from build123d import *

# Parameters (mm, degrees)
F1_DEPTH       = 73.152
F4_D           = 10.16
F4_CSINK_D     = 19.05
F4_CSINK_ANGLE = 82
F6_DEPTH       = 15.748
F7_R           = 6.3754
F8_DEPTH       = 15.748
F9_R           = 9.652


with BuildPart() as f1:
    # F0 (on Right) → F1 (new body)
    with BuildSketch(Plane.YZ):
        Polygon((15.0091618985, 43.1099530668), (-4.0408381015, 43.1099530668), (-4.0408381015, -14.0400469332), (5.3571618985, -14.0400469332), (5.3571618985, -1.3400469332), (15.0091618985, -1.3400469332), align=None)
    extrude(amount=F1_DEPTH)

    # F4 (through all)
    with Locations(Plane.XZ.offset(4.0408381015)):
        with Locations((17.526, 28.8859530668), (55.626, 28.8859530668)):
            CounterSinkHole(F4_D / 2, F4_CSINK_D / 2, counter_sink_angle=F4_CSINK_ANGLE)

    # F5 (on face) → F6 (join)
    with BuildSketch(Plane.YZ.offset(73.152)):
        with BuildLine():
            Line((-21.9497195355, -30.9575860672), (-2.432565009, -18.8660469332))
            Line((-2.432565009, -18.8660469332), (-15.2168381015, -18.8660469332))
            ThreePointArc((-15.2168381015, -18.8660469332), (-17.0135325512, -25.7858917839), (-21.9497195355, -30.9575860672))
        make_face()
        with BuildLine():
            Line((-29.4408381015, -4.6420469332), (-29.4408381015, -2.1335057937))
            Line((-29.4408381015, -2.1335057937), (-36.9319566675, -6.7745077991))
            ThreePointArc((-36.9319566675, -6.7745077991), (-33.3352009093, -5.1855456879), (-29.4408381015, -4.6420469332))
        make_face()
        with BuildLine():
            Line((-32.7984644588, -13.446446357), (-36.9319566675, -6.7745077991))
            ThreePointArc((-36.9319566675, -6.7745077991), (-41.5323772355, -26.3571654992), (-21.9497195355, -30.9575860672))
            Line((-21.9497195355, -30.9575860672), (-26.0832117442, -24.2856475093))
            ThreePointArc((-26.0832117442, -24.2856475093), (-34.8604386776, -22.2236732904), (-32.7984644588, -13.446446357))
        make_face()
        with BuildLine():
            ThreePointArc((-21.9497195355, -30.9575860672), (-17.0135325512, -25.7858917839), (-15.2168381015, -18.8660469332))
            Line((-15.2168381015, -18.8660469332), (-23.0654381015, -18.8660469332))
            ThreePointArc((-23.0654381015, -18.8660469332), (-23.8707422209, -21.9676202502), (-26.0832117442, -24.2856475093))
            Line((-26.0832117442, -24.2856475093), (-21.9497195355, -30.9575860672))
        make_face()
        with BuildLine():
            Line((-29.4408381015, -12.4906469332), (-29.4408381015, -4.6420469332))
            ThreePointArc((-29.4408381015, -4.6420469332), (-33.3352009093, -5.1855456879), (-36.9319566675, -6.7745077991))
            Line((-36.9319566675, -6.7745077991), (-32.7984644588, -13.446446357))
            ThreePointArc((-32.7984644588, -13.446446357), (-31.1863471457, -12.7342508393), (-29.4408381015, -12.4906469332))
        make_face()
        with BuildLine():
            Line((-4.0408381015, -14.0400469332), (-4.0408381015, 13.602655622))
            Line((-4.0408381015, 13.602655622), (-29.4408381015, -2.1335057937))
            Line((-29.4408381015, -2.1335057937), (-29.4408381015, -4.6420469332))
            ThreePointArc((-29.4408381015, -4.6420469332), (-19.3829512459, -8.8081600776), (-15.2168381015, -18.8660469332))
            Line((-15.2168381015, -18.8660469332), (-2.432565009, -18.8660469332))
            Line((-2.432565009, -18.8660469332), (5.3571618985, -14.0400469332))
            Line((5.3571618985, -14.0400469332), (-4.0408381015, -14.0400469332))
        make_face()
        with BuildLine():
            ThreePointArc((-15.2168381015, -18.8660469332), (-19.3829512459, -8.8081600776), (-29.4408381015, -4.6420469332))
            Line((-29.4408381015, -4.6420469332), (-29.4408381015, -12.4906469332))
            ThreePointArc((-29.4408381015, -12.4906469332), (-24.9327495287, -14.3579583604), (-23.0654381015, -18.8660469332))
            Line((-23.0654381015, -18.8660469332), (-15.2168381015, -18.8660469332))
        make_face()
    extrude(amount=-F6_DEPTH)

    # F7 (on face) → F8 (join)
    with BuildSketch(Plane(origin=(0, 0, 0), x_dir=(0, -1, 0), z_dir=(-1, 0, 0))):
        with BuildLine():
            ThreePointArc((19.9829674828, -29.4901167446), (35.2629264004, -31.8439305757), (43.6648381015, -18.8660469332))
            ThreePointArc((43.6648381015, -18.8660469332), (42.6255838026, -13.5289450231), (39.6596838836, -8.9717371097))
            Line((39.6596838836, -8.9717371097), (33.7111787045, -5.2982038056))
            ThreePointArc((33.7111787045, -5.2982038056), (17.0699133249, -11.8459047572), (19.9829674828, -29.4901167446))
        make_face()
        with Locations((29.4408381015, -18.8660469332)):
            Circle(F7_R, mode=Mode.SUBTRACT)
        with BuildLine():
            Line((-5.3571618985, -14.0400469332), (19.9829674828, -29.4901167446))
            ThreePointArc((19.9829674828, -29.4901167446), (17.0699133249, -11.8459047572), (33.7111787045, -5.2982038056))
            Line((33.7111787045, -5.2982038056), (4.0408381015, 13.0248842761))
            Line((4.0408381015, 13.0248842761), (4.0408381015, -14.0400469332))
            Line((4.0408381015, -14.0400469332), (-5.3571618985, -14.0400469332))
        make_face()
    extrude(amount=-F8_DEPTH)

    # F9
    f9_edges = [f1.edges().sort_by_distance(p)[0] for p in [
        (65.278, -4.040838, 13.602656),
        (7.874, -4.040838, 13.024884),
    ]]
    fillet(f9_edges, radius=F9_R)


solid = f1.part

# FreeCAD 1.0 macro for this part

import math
import FreeCAD as App
import Part
import Sketcher
from FreeCAD import Vector
Q = App.Units.Quantity


def edges_at(feature, points):
    """Names of the edges that pass closest to the given points."""
    edges = feature.Shape.Edges
    near = lambda p: min(range(len(edges)), key=lambda i: edges[i].distToShape(Part.Vertex(*p))[0])
    return sorted({f"Edge{near(p) + 1}" for p in points})

doc = App.newDocument("Part")
body = doc.addObject("PartDesign::Body", "Body")

sketch1 = doc.addObject("Sketcher::SketchObject", "Sketch")
body.addObject(sketch1)
sketch1.AttachmentSupport = (doc.YZ_Plane, [""])
sketch1.MapMode = "FlatFace"
sketch1.addGeometry([
    Part.LineSegment(Vector(15.009162, 43.109953, 0), Vector(-4.040838, 43.109953, 0)),
    Part.LineSegment(Vector(-4.040838, 43.109953, 0), Vector(-4.040838, -14.040047, 0)),
    Part.LineSegment(Vector(-4.040838, -14.040047, 0), Vector(5.357162, -14.040047, 0)),
    Part.LineSegment(Vector(5.357162, -14.040047, 0), Vector(5.357162, -1.340047, 0)),
    Part.LineSegment(Vector(5.357162, -1.340047, 0), Vector(15.009162, -1.340047, 0)),
    Part.LineSegment(Vector(15.009162, -1.340047, 0), Vector(15.009162, 43.109953, 0)),
], False)
sketch1.addConstraint([
    Sketcher.Constraint("Coincident", 0, 2, 1, 1),
    Sketcher.Constraint("Coincident", 1, 2, 2, 1),
    Sketcher.Constraint("Coincident", 2, 2, 3, 1),
    Sketcher.Constraint("Coincident", 3, 2, 4, 1),
    Sketcher.Constraint("Coincident", 4, 2, 5, 1),
    Sketcher.Constraint("Coincident", 5, 2, 0, 1),
    Sketcher.Constraint("Horizontal", 0),
    Sketcher.Constraint("Vertical", 1),
    Sketcher.Constraint("Horizontal", 2),
    Sketcher.Constraint("Vertical", 3),
    Sketcher.Constraint("Horizontal", 4),
    Sketcher.Constraint("Vertical", 5),
    Sketcher.Constraint("DistanceY", 3, 1, 3, 2, Q("0.5 in")),
    Sketcher.Constraint("DistanceX", 0, 2, 0, 1, Q("0.75 in")),
    Sketcher.Constraint("DistanceX", 2, 1, 2, 2, Q("0.37 in")),
    Sketcher.Constraint("DistanceY", 1, 2, 1, 1, Q("2.25 in")),
    Sketcher.Constraint("DistanceX", 0, 2, -1, 1, Q("4.040838 mm")),
    Sketcher.Constraint("DistanceY", -1, 1, 0, 2, Q("43.109953 mm")),
])
pad1 = doc.addObject("PartDesign::Pad", "Pad")
body.addObject(pad1)
pad1.Profile = sketch1
pad1.Length = Q("2.88 in")

sketch2 = doc.addObject("Sketcher::SketchObject", "Sketch001")
body.addObject(sketch2)
sketch2.AttachmentSupport = (doc.XZ_Plane, [""])
sketch2.MapMode = "FlatFace"
sketch2.AttachmentOffset = App.Placement(Vector(0, 0, 4.040838), App.Rotation())
sketch2.addGeometry([
    Part.Circle(Vector(17.526, 28.885953, 0), Vector(0, 0, 1), 5.08),
    Part.Circle(Vector(55.626, 28.885953, 0), Vector(0, 0, 1), 5.08),
], False)
sketch2.addConstraint([
    Sketcher.Constraint("Equal", 0, 1),
    Sketcher.Constraint("Horizontal", 0, 3, 1, 3),
    Sketcher.Constraint("Diameter", 0, Q("0.4 in")),
    Sketcher.Constraint("DistanceX", 0, 3, 1, 3, Q("1.5 in")),
    Sketcher.Constraint("DistanceX", -1, 1, 0, 3, Q("0.69 in")),
    Sketcher.Constraint("DistanceY", -1, 1, 0, 3, Q("28.885953 mm")),
])
doc.recompute()
hole = doc.addObject("PartDesign::Hole", "Hole")
body.addObject(hole)
hole.Profile = sketch2
hole.ThreadType = "None"
hole.Diameter = Q("0.4 in")
hole.DepthType = "ThroughAll"
hole.HoleCutType = "Countersink"
hole.HoleCutDiameter = Q("0.75 in")
hole.HoleCutCountersinkAngle = 82

sketch3 = doc.addObject("Sketcher::SketchObject", "Sketch002")
body.addObject(sketch3)
sketch3.AttachmentSupport = (doc.YZ_Plane, [""])
sketch3.MapMode = "FlatFace"
sketch3.AttachmentOffset = App.Placement(Vector(0, 0, 2.88 * 25.4), App.Rotation())
sketch3.addGeometry([
    Part.LineSegment(Vector(-21.94972, -30.957586, 0), Vector(-2.432565, -18.866047, 0)),
    Part.LineSegment(Vector(-2.432565, -18.866047, 0), Vector(5.357162, -14.040047, 0)),
    Part.LineSegment(Vector(5.357162, -14.040047, 0), Vector(-4.040838, -14.040047, 0)),
    Part.LineSegment(Vector(-4.040838, -14.040047, 0), Vector(-4.040838, 13.602656, 0)),
    Part.LineSegment(Vector(-4.040838, 13.602656, 0), Vector(-29.440838, -2.133506, 0)),
    Part.LineSegment(Vector(-29.440838, -2.133506, 0), Vector(-36.931957, -6.774508, 0)),
    Part.ArcOfCircle(Part.Circle(Vector(-29.440838, -18.866047, 0), Vector(0, 0, 1), 14.224), math.radians(121.779619), math.radians(301.779619)),
    Part.ArcOfCircle(Part.Circle(Vector(-29.440838, -18.866047, 0), Vector(0, 0, 1), 6.3754), math.radians(-58.220381), math.radians(0)),
    Part.ArcOfCircle(Part.Circle(Vector(-29.440838, -18.866047, 0), Vector(0, 0, 1), 6.3754), math.radians(121.779619), math.radians(301.779619)),
    Part.ArcOfCircle(Part.Circle(Vector(-29.440838, -18.866047, 0), Vector(0, 0, 1), 6.3754), math.radians(90), math.radians(121.779619)),
    Part.ArcOfCircle(Part.Circle(Vector(-29.440838, -18.866047, 0), Vector(0, 0, 1), 6.3754), math.radians(0), math.radians(90)),
], False)
sketch3.addConstraint([
    Sketcher.Constraint("Coincident", 0, 2, 1, 1),
    Sketcher.Constraint("Coincident", 1, 2, 2, 1),
    Sketcher.Constraint("Coincident", 2, 2, 3, 1),
    Sketcher.Constraint("Coincident", 3, 2, 4, 1),
    Sketcher.Constraint("Coincident", 4, 2, 5, 1),
    Sketcher.Constraint("Tangent", 5, 2, 6, 1),
    Sketcher.Constraint("Tangent", 6, 2, 0, 1),
    Sketcher.Constraint("Tangent", 7, 1, 8, 2),
    Sketcher.Constraint("Tangent", 8, 1, 9, 2),
    Sketcher.Constraint("Tangent", 9, 1, 10, 2),
    Sketcher.Constraint("Tangent", 10, 1, 7, 2),
    Sketcher.Constraint("Horizontal", 2),
    Sketcher.Constraint("Vertical", 3),
    Sketcher.Constraint("Coincident", 7, 3, 6, 3),
    Sketcher.Constraint("Equal", 7, 8),
    Sketcher.Constraint("Parallel", 0, 1),
    Sketcher.Constraint("Parallel", 1, 4),
    Sketcher.Constraint("Parallel", 4, 5),
    Sketcher.Constraint("Horizontal", 10, 3, 0, 2),
    Sketcher.Constraint("Horizontal", 0, 2, 10, 1),
    Sketcher.Constraint("Vertical", 10, 3, 4, 2),
    Sketcher.Constraint("Vertical", 4, 2, 9, 1),
    Sketcher.Constraint("Radius", 6, Q("0.56 in")),
    Sketcher.Constraint("Radius", 7, Q("0.251 in")),
    Sketcher.Constraint("DistanceX", 6, 3, 2, 2, Q("1 in")),
    Sketcher.Constraint("DistanceX", 2, 2, 2, 1, Q("0.37 in")),
    Sketcher.Constraint("DistanceY", 0, 2, 1, 2, Q("0.19 in")),
    Sketcher.Constraint("DistanceY", 7, 1, 6, 3, Q("5.419601 mm")),
    Sketcher.Constraint("DistanceY", 7, 3, 8, 1, Q("5.419601 mm")),
    Sketcher.Constraint("DistanceX", 6, 3, -1, 1, Q("29.440838 mm")),
    Sketcher.Constraint("DistanceY", 6, 3, -1, 1, Q("18.866047 mm")),
])
pad2 = doc.addObject("PartDesign::Pad", "Pad001")
body.addObject(pad2)
pad2.Profile = sketch3
pad2.Length = Q("0.62 in")
pad2.Reversed = True

sketch4 = doc.addObject("Sketcher::SketchObject", "Sketch003")
body.addObject(sketch4)
sketch4.AttachmentSupport = (doc.YZ_Plane, [""])
sketch4.MapMode = "FlatFace"
sketch4.addGeometry([
    Part.ArcOfCircle(Part.Circle(Vector(-29.440838, -18.866047, 0), Vector(0, 0, 1), 14.224), math.radians(180), math.radians(311.67645)),
    Part.ArcOfCircle(Part.Circle(Vector(-29.440838, -18.866047, 0), Vector(0, 0, 1), 14.224), math.radians(135.924416), math.radians(180)),
    Part.LineSegment(Vector(-39.659684, -8.971737, 0), Vector(-33.711179, -5.298204, 0)),
    Part.LineSegment(Vector(-33.711179, -5.298204, 0), Vector(-4.040838, 13.024884, 0)),
    Part.LineSegment(Vector(-4.040838, 13.024884, 0), Vector(-4.040838, -14.040047, 0)),
    Part.LineSegment(Vector(-4.040838, -14.040047, 0), Vector(5.357162, -14.040047, 0)),
    Part.LineSegment(Vector(5.357162, -14.040047, 0), Vector(-19.982967, -29.490117, 0)),
    Part.Circle(Vector(-29.440838, -18.866047, 0), Vector(0, 0, 1), 6.3754),
], False)
sketch4.addConstraint([
    Sketcher.Constraint("Tangent", 0, 1, 1, 2),
    Sketcher.Constraint("Coincident", 1, 1, 2, 1),
    Sketcher.Constraint("Coincident", 2, 2, 3, 1),
    Sketcher.Constraint("Coincident", 3, 2, 4, 1),
    Sketcher.Constraint("Coincident", 4, 2, 5, 1),
    Sketcher.Constraint("Coincident", 5, 2, 6, 1),
    Sketcher.Constraint("Coincident", 6, 2, 0, 2),
    Sketcher.Constraint("Vertical", 4),
    Sketcher.Constraint("Horizontal", 5),
    Sketcher.Constraint("Coincident", 7, 3, 0, 3),
    Sketcher.Constraint("Equal", 0, 1),
    Sketcher.Constraint("Parallel", 2, 3),
    Sketcher.Constraint("Horizontal", 7, 3, 0, 1),
    Sketcher.Constraint("Radius", 0, Q("0.56 in")),
    Sketcher.Constraint("Diameter", 7, Q("0.502 in")),
    Sketcher.Constraint("DistanceX", 7, 3, 3, 2, Q("1 in")),
    Sketcher.Constraint("DistanceX", 5, 1, 5, 2, Q("0.37 in")),
    Sketcher.Constraint("DistanceY", 7, 3, 4, 2, Q("0.19 in")),
    Sketcher.Constraint("DistanceY", 4, 2, 4, 1, Q("27.064931 mm")),
    Sketcher.Constraint("Distance", 2, Q("6.991392 mm")),
    Sketcher.Constraint("Distance", 3, Q("34.872119 mm")),
    Sketcher.Constraint("DistanceX", 0, 3, -1, 1, Q("29.440838 mm")),
    Sketcher.Constraint("DistanceX", 7, 3, 6, 2, Q("9.457871 mm")),
    Sketcher.Constraint("DistanceY", 0, 3, -1, 1, Q("18.866047 mm")),
])
pad3 = doc.addObject("PartDesign::Pad", "Pad002")
body.addObject(pad3)
pad3.Profile = sketch4
pad3.Length = Q("0.62 in")
doc.recompute()

fillet = doc.addObject("PartDesign::Fillet", "Fillet")
body.addObject(fillet)
fillet.Base = (pad3, edges_at(pad3, [(65.278, -4.041, 13.603), (7.874, -4.041, 13.025)]))
fillet.Radius = Q("0.38 in")

doc.recompute()
